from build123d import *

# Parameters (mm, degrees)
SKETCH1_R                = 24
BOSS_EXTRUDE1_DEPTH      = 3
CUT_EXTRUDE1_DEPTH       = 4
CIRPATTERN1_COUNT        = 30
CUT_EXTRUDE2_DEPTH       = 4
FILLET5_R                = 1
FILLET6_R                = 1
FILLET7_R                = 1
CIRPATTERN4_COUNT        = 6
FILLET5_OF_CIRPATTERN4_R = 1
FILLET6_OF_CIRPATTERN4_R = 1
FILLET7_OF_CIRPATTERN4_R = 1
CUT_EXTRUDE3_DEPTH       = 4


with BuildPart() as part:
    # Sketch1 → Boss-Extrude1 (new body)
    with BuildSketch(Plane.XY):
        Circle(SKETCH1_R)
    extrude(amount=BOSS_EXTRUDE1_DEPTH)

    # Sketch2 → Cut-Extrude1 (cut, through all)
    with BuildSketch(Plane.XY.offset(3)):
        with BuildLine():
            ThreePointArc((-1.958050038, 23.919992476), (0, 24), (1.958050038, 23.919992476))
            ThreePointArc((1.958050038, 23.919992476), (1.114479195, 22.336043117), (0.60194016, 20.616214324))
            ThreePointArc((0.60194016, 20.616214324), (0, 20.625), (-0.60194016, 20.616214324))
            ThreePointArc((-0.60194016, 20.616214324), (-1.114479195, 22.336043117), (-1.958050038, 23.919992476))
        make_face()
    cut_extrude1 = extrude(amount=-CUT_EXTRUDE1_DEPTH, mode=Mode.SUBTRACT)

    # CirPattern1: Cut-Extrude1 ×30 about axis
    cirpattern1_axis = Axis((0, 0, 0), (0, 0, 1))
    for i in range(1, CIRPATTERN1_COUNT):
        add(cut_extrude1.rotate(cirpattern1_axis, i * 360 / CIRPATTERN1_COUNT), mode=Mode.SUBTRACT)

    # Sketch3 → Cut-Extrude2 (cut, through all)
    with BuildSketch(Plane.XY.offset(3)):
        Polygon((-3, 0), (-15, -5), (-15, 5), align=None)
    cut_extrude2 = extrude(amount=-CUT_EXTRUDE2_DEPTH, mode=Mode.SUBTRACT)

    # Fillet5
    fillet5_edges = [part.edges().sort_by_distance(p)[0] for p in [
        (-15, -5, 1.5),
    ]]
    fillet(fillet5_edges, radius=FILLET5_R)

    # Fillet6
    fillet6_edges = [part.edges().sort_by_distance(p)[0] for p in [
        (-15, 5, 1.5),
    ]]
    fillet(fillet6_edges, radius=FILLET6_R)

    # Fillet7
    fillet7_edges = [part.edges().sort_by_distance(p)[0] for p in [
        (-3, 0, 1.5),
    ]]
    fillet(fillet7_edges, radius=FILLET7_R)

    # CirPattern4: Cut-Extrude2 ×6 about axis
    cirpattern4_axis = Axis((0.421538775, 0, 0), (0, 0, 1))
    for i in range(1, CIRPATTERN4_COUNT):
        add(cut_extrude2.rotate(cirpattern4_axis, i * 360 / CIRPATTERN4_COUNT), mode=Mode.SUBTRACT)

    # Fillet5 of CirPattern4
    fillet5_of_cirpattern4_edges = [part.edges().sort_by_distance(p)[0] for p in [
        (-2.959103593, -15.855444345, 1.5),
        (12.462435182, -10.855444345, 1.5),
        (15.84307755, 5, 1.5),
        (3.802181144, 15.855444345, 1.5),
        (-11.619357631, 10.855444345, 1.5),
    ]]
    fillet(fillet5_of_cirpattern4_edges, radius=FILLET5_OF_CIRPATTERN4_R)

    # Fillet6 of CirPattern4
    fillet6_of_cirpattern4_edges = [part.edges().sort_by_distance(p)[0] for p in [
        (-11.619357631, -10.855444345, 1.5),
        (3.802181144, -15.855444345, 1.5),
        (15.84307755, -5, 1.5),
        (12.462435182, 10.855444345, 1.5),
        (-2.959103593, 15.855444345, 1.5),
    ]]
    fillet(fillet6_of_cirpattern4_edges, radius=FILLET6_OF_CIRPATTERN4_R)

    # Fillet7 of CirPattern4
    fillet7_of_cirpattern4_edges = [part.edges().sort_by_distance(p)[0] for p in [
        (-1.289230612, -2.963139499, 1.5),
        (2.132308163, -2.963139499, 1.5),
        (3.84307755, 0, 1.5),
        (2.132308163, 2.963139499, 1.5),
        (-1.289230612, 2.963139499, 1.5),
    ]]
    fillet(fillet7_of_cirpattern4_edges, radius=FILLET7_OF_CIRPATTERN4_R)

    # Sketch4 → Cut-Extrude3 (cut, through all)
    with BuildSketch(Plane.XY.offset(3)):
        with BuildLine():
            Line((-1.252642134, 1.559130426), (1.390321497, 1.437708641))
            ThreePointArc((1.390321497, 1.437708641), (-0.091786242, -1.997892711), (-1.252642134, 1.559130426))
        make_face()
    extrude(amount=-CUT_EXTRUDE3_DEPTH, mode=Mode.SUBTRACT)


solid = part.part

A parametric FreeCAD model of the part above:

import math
import FreeCAD as App
import Part
import Sketcher
Q = App.Units.Quantity


def edges_at(feature, points):
    """Names of the edges that pass closest to the given points."""
    edges = feature.Shape.Edges
    near = lambda p: min(range(len(edges)), key=lambda i: edges[i].distToShape(Part.Vertex(*p))[0])
    return sorted({f"Edge{near(p) + 1}" for p in points})

doc = App.newDocument("Part")
body = doc.addObject("PartDesign::Body", "Body")

# Sketch on XY plane
sketch1 = body.newObject("Sketcher::SketchObject", "Sketch")
sketch1.AttachmentSupport = (doc.getObject("XY_Plane"), [""])
sketch1.MapMode = "FlatFace"
sketch1.addGeometry(Part.Circle(App.Vector(0, 0, 0), App.Vector(0, 0, 1), 24), False)
sketch1.addConstraint(Sketcher.Constraint("Coincident", 0, 3, -1, 1))
sketch1.addConstraint(Sketcher.Constraint("Diameter", 0, Q("48 mm")))
pad1 = body.newObject("PartDesign::Pad", "Pad")
pad1.Profile = sketch1
pad1.Length = 3

# Sketch on XY plane
sketch2 = body.newObject("Sketcher::SketchObject", "Sketch001")
sketch2.AttachmentSupport = (doc.getObject("XY_Plane"), [""])
sketch2.MapMode = "FlatFace"
sketch2.AttachmentOffset = App.Placement(App.Vector(0, 0, 3), App.Rotation())
sketch2.addGeometry(Part.ArcOfCircle(Part.Circle(App.Vector(0, 0, 0), App.Vector(0, 0, 1), 24), math.radians(85.32), math.radians(94.68)), False)
sketch2.addGeometry(Part.ArcOfCircle(Part.Circle(App.Vector(-9.4, 18.9, 0), App.Vector(0, 0, 1), 9), math.radians(11), math.radians(34)), False)
sketch2.addGeometry(Part.ArcOfCircle(Part.Circle(App.Vector(0, 0, 0), App.Vector(0, 0, 1), 20.6), math.radians(88.33), math.radians(91.67)), False)
sketch2.addGeometry(Part.ArcOfCircle(Part.Circle(App.Vector(9.4, 18.9, 0), App.Vector(0, 0, 1), 9), math.radians(146), math.radians(169)), False)
sketch2.addConstraint(Sketcher.Constraint("Coincident", 0, 2, 1, 2))
sketch2.addConstraint(Sketcher.Constraint("Coincident", 1, 1, 2, 2))
sketch2.addConstraint(Sketcher.Constraint("Coincident", 2, 1, 3, 2))
sketch2.addConstraint(Sketcher.Constraint("Coincident", 3, 1, 0, 1))
sketch2.addConstraint(Sketcher.Constraint("Coincident", 0, 3, -1, 1))
sketch2.addConstraint(Sketcher.Constraint("Coincident", 2, 3, -1, 1))
sketch2.addConstraint(Sketcher.Constraint("Equal", 1, 3))
sketch2.addConstraint(Sketcher.Constraint("Symmetric", 1, 3, 3, 3, -2))
sketch2.addConstraint(Sketcher.Constraint("Radius", 0, Q("24 mm")))
sketch2.addConstraint(Sketcher.Constraint("Radius", 1, Q("9 mm")))
sketch2.addConstraint(Sketcher.Constraint("Radius", 2, Q("20.625001 mm")))
sketch2.addConstraint(Sketcher.Constraint("DistanceX", 0, 2, 3, 1, Q("3.9161 mm")))
sketch2.addConstraint(Sketcher.Constraint("DistanceX", 1, 1, -1, 1, Q("0.60194 mm")))
pocket1 = body.newObject("PartDesign::Pocket", "Pocket")
pocket1.Profile = sketch2
pocket1.Type = "ThroughAll"
doc.recompute()

polarpattern = body.newObject("PartDesign::PolarPattern", "PolarPattern")
polarpattern.Originals = [pocket1]
polarpattern.Axis = (doc.getObject("Z_Axis"), [""])
polarpattern.Angle = 360
polarpattern.Occurrences = 30
body.Tip = polarpattern

# Sketch on XY plane
sketch3 = body.newObject("Sketcher::SketchObject", "Sketch002")
sketch3.AttachmentSupport = (doc.getObject("XY_Plane"), [""])
sketch3.MapMode = "FlatFace"
sketch3.AttachmentOffset = App.Placement(App.Vector(0, 0, 3), App.Rotation())
sketch3.addGeometry(Part.LineSegment(App.Vector(-15, -5, 0), App.Vector(-3, 0, 0)), False)
sketch3.addGeometry(Part.LineSegment(App.Vector(-3, 0, 0), App.Vector(-15, 5, 0)), False)
sketch3.addGeometry(Part.LineSegment(App.Vector(-15, 5, 0), App.Vector(-15, -5, 0)), False)
sketch3.addConstraint(Sketcher.Constraint("Coincident", 0, 2, 1, 1))
sketch3.addConstraint(Sketcher.Constraint("Coincident", 1, 2, 2, 1))
sketch3.addConstraint(Sketcher.Constraint("Coincident", 2, 2, 0, 1))
sketch3.addConstraint(Sketcher.Constraint("Vertical", 2))
sketch3.addConstraint(Sketcher.Constraint("PointOnObject", 0, 2, -1))
sketch3.addConstraint(Sketcher.Constraint("Equal", 0, 1))
sketch3.addConstraint(Sketcher.Constraint("DistanceY", 2, 2, 2, 1, Q("10 mm")))
sketch3.addConstraint(Sketcher.Constraint("Distance", 0, Q("13 mm")))
sketch3.addConstraint(Sketcher.Constraint("DistanceX", 0, 2, -1, 1, Q("3 mm")))
pocket2 = body.newObject("PartDesign::Pocket", "Pocket001")
pocket2.Profile = sketch3
pocket2.Type = "ThroughAll"
doc.recompute()

fillet = body.newObject("PartDesign::Fillet", "Fillet")
fillet.Base = (pocket2, edges_at(pocket2, [(-15, -5, 1.5)]))
fillet.Radius = 1
doc.recompute()

fillet2 = body.newObject("PartDesign::Fillet", "Fillet001")
fillet2.Base = (fillet, edges_at(fillet, [(-15, 5, 1.5)]))
fillet2.Radius = 1
doc.recompute()

fillet3 = body.newObject("PartDesign::Fillet", "Fillet002")
fillet3.Base = (fillet2, edges_at(fillet2, [(-3, 0, 1.5)]))
fillet3.Radius = 1
doc.recompute()

datumline = body.newObject("PartDesign::Line", "DatumLine")
datumline.Placement = App.Placement(App.Vector(0.421539, 0, 0), App.Rotation(App.Vector(0, 0, 1), App.Vector(0, 0, 1)))
polarpattern2 = body.newObject("PartDesign::PolarPattern", "PolarPattern001")
polarpattern2.Originals = [pocket2]
polarpattern2.Axis = (datumline, [""])
polarpattern2.Angle = 360
polarpattern2.Occurrences = 6
body.Tip = polarpattern2
doc.recompute()

fillet4 = body.newObject("PartDesign::Fillet", "Fillet003")
fillet4.Base = (polarpattern2, edges_at(polarpattern2, [
    (-2.959, -15.855, 1.5),
    (12.462, -10.855, 1.5),
    (15.843, 5, 1.5),
    (3.802, 15.855, 1.5),
    (-11.619, 10.855, 1.5),
]))
fillet4.Radius = 1
doc.recompute()

fillet5 = body.newObject("PartDesign::Fillet", "Fillet004")
fillet5.Base = (fillet4, edges_at(fillet4, [
    (-11.619, -10.855, 1.5),
    (3.802, -15.855, 1.5),
    (15.843, -5, 1.5),
    (12.462, 10.855, 1.5),
    (-2.959, 15.855, 1.5),
]))
fillet5.Radius = 1
doc.recompute()

fillet6 = body.newObject("PartDesign::Fillet", "Fillet005")
fillet6.Base = (fillet5, edges_at(fillet5, [
    (-1.289, -2.963, 1.5),
    (2.132, -2.963, 1.5),
    (3.843, 0, 1.5),
    (2.132, 2.963, 1.5),
    (-1.289, 2.963, 1.5),
]))
fillet6.Radius = 1

# Sketch on XY plane
sketch4 = body.newObject("Sketcher::SketchObject", "Sketch003")
sketch4.AttachmentSupport = (doc.getObject("XY_Plane"), [""])
sketch4.MapMode = "FlatFace"
sketch4.AttachmentOffset = App.Placement(App.Vector(0, 0, 3), App.Rotation())
sketch4.addGeometry(Part.LineSegment(App.Vector(1.4, 1.4, 0), App.Vector(-1.3, 1.6, 0)), False)
sketch4.addGeometry(Part.ArcOfCircle(Part.Circle(App.Vector(0, 0, 0), App.Vector(0, 0, 1), 2), math.radians(129), math.radians(406)), False)
sketch4.addConstraint(Sketcher.Constraint("Coincident", 0, 1, 1, 2))
sketch4.addConstraint(Sketcher.Constraint("Coincident", 1, 1, 0, 2))
sketch4.addConstraint(Sketcher.Constraint("Coincident", 1, 3, -1, 1))
sketch4.addConstraint(Sketcher.Constraint("Radius", 1, Q("2 mm")))
sketch4.addConstraint(Sketcher.Constraint("Distance", 0, Q("2.645751 mm")))
sketch4.addConstraint(Sketcher.Constraint("DistanceX", -1, 1, 0, 1, Q("1.390321 mm")))
pocket3 = body.newObject("PartDesign::Pocket", "Pocket002")
pocket3.Profile = sketch4
pocket3.Type = "ThroughAll"

doc.recompute()
